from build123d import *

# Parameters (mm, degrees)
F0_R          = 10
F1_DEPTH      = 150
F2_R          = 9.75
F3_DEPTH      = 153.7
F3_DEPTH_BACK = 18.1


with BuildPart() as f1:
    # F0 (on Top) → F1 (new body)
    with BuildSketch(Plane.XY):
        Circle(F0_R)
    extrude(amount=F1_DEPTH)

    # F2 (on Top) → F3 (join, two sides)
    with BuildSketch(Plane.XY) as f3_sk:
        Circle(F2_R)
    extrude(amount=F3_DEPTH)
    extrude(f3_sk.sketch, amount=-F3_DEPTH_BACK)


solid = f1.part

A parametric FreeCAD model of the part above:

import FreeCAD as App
import Part
import Sketcher

V = App.Vector
Q = App.Units.Quantity

doc = App.newDocument("Part")
params = doc.addObject("Spreadsheet::Sheet", "Params")
for row, (alias, value) in enumerate([
    ("sketch1_diameter", "20 mm"),
    ("pad1_length", "150 mm"),
    ("sketch2_diameter", "19.5 mm"),
    ("pad2_length", "153.7 mm"),
    ("pad2_length2", "18.1 mm"),
], start=1):
    params.set(f"A{row}", alias)
    params.set(f"B{row}", "=" + value)
    params.setAlias(f"B{row}", alias)

body = doc.addObject("PartDesign::Body", "Body")

# Sketch on XY plane
sketch1 = doc.addObject("Sketcher::SketchObject", "Sketch")
body.addObject(sketch1)
sketch1.AttachmentSupport = (doc.XY_Plane, [""])
sketch1.MapMode = "FlatFace"
sketch1.addGeometry(Part.Circle(V(0, 0, 0), V(0, 0, 1), 10), False)
sketch1.addConstraint(Sketcher.Constraint("Coincident", 0, 3, -1, 1))
sketch1.addConstraint(Sketcher.Constraint("Diameter", 0, Q("20 mm")))
sketch1.setExpression("Constraints[1]", "Params.sketch1_diameter")
pad1 = doc.addObject("PartDesign::Pad", "Pad")
body.addObject(pad1)
pad1.Profile = sketch1
pad1.setExpression("Length", "Params.pad1_length")

# Sketch on XY plane
sketch2 = doc.addObject("Sketcher::SketchObject", "Sketch001")
body.addObject(sketch2)
sketch2.AttachmentSupport = (doc.XY_Plane, [""])
sketch2.MapMode = "FlatFace"
sketch2.addGeometry(Part.Circle(V(0, 0, 0), V(0, 0, 1), 10), False)
sketch2.addConstraint(Sketcher.Constraint("Coincident", 0, 3, -1, 1))
sketch2.addConstraint(Sketcher.Constraint("Diameter", 0, Q("19.5 mm")))
sketch2.setExpression("Constraints[1]", "Params.sketch2_diameter")
pad2 = doc.addObject("PartDesign::Pad", "Pad001")
body.addObject(pad2)
pad2.Profile = sketch2
pad2.Type = "TwoLengths"
pad2.setExpression("Length", "Params.pad2_length")
pad2.setExpression("Length2", "Params.pad2_length2")

doc.recompute()
